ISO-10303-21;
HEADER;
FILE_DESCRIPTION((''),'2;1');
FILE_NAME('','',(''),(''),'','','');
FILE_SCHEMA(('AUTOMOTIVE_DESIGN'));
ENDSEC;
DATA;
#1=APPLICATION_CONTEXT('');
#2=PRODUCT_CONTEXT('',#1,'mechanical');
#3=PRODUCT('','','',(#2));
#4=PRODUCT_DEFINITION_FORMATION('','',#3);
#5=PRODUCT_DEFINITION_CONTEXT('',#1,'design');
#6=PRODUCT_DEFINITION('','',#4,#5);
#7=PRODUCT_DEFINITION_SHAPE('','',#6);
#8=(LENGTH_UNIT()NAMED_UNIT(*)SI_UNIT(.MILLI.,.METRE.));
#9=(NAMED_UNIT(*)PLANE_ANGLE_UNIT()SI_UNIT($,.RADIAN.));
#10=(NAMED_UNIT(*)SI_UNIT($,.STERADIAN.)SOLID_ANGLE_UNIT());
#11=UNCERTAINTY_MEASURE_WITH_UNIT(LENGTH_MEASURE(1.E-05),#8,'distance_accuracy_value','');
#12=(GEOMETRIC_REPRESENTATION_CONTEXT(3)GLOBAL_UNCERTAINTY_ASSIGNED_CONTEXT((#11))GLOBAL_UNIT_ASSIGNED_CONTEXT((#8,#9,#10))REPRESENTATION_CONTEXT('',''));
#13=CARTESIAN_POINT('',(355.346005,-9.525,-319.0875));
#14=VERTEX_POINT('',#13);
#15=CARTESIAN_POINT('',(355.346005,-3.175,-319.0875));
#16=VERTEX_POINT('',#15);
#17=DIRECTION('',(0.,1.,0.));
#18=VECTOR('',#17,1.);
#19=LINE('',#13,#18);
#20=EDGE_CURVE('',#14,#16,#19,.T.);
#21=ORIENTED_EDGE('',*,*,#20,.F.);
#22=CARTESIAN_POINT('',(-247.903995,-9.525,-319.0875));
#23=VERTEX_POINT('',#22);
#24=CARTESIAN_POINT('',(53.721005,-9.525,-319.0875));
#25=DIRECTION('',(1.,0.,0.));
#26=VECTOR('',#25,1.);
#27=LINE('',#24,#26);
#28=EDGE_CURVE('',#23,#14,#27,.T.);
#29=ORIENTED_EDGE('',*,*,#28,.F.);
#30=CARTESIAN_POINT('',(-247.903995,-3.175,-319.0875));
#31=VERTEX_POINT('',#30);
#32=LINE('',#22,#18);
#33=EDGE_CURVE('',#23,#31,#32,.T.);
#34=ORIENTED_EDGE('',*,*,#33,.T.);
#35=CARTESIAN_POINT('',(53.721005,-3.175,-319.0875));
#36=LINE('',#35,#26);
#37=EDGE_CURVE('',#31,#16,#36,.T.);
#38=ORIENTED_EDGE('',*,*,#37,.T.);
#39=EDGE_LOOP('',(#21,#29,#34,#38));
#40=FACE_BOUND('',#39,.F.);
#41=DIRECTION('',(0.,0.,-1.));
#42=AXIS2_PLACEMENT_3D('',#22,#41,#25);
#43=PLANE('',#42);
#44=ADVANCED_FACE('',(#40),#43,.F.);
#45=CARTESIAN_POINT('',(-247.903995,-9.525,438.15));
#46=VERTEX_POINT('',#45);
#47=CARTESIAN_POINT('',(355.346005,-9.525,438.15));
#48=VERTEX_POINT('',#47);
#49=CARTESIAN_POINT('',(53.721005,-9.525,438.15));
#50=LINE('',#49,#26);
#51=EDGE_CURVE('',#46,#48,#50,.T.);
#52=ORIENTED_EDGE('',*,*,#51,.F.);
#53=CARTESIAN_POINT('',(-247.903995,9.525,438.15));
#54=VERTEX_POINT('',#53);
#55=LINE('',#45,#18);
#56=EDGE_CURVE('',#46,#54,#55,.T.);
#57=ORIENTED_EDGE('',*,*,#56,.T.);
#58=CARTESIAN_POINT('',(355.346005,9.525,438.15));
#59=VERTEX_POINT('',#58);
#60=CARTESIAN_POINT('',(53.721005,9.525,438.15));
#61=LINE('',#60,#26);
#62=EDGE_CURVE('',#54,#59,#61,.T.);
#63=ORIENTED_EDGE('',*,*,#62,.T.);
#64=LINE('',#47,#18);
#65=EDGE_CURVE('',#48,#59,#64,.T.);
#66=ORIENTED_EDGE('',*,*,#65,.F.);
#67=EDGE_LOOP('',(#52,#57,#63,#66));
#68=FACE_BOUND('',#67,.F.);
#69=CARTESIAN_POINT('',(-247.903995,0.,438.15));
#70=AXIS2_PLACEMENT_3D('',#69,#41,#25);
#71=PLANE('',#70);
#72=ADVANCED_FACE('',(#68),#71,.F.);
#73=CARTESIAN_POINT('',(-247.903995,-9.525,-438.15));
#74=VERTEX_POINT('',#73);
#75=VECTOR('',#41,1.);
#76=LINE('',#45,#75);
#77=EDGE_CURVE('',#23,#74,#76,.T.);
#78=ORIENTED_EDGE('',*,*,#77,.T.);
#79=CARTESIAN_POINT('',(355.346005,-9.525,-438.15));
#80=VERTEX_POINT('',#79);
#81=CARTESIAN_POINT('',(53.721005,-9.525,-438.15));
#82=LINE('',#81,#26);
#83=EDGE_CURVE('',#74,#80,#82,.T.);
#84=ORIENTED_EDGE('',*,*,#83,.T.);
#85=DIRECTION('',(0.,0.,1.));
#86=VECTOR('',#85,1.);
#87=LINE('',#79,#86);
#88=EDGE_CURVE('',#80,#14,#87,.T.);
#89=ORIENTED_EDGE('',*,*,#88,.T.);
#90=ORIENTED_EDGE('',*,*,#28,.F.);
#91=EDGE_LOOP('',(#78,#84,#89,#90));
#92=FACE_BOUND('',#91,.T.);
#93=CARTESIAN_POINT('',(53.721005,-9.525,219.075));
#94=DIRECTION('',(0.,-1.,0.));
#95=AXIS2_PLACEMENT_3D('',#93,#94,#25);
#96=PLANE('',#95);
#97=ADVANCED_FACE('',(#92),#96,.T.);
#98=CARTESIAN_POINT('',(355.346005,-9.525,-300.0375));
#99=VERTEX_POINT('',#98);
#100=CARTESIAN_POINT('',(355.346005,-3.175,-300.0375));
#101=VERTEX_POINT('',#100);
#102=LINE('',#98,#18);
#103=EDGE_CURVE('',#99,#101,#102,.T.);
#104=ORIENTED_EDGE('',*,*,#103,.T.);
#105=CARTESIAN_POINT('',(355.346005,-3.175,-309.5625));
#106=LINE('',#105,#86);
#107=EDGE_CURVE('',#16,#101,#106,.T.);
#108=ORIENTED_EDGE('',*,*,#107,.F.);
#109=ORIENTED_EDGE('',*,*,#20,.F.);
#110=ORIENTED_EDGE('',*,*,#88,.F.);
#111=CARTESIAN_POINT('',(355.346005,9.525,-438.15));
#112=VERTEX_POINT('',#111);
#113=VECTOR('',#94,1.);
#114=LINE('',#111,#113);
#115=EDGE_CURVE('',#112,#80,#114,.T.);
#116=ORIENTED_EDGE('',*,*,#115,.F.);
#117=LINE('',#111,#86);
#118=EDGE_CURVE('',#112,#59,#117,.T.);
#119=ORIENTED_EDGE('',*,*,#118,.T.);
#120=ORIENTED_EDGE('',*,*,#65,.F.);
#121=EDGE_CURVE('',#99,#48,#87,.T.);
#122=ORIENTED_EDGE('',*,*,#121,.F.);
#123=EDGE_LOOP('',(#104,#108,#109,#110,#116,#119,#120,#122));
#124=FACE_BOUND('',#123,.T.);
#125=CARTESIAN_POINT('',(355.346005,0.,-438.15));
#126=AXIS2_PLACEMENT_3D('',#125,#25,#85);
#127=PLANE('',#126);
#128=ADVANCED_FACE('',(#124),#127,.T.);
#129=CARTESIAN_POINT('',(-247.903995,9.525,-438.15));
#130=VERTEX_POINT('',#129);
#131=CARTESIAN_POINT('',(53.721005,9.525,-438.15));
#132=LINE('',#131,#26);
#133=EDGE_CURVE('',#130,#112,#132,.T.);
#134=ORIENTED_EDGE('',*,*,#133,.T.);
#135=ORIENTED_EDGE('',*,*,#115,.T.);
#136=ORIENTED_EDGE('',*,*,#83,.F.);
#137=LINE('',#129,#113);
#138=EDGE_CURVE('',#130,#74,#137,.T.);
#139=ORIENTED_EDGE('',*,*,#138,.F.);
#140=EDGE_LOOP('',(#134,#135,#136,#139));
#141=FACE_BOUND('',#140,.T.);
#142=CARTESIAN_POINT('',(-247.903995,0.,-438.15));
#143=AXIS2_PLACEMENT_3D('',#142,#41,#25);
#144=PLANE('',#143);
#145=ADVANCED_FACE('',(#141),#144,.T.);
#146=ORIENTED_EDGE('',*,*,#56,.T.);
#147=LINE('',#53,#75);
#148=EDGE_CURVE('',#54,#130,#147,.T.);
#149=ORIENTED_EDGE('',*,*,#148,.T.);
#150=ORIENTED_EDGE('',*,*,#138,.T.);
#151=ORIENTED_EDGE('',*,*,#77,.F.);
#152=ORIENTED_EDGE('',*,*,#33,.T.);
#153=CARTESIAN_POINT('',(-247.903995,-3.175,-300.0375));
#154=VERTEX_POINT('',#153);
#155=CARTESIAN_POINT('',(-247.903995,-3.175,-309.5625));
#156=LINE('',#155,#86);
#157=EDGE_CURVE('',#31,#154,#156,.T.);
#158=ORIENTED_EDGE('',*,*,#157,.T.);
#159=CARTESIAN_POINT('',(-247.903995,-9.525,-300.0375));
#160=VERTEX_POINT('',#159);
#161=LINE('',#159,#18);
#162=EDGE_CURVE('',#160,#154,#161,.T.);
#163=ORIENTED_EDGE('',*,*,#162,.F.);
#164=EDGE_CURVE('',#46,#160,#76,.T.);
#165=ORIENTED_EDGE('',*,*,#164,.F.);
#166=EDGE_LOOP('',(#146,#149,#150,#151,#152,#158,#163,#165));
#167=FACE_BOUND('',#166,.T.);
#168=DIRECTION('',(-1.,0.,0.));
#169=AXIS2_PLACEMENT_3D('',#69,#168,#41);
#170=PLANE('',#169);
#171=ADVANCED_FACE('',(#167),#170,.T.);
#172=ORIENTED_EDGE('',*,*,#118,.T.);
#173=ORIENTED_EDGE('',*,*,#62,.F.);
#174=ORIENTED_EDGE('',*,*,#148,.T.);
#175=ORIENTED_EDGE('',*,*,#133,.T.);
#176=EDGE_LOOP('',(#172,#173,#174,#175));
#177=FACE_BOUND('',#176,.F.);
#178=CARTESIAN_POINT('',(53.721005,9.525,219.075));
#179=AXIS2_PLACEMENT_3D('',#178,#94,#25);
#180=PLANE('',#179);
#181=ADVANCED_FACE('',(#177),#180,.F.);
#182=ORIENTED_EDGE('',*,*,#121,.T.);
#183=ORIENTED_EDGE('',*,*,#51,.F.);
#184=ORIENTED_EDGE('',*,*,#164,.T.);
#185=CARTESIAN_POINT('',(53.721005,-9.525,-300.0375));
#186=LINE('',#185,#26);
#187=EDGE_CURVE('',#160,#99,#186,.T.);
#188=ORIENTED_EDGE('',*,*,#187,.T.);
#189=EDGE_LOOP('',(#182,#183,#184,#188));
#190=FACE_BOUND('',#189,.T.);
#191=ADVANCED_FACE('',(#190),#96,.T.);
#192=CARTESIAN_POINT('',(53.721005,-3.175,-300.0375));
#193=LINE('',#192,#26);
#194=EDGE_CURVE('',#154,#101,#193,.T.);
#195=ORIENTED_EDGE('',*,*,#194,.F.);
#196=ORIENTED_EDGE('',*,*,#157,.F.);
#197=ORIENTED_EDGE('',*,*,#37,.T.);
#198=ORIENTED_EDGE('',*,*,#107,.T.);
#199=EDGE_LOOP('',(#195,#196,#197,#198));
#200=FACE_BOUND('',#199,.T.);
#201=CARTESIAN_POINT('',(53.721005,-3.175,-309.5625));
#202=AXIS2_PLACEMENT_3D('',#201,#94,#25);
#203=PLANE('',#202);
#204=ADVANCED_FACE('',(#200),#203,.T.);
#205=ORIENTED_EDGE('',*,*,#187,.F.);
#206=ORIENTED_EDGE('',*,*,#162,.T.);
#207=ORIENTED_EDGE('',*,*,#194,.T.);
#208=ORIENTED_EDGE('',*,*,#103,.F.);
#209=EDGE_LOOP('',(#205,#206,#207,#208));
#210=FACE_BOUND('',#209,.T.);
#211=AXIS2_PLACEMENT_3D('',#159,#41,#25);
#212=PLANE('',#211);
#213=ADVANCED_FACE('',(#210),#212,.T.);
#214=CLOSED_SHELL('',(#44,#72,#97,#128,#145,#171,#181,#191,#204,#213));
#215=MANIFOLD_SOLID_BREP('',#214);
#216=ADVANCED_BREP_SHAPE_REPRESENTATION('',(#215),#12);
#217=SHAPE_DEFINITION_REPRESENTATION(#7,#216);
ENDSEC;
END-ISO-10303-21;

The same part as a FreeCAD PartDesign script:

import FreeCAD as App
import Part
import Sketcher
Q = App.Units.Quantity


def add_polygon(sketch, points):
    """Adds a closed chain of lines whose ends are joined by coincident constraints."""
    first, n = sketch.GeometryCount, len(points)
    for a, b in zip(points, points[1:] + points[:1]):
        sketch.addGeometry(Part.LineSegment(App.Vector(*a, 0), App.Vector(*b, 0)), False)
    for i in range(n):
        sketch.addConstraint(Sketcher.Constraint("Coincident", first + i, 2, first + (i + 1) % n, 1))

doc = App.newDocument("Part")
params = doc.addObject("Spreadsheet::Sheet", "Params")
for row, (alias, value) in enumerate([
    ("sketch1_height", "34.5 in"),
    ("sketch1_width", "23.75 in"),
    ("pad1_length", "0.75 in"),
    ("sketch2_width", "23.75 in"),
    ("sketch2_height", "0.75 in"),
    ("pocket1_length", "0.25 in"),
], start=1):
    params.set(f"A{row}", alias)
    params.set(f"B{row}", "=" + value)
    params.setAlias(f"B{row}", alias)

body = doc.addObject("PartDesign::Body", "Body")

sketch1 = body.newObject("Sketcher::SketchObject", "Sketch")
sketch1.AttachmentSupport = (doc.getObject("XZ_Plane"), [""])
sketch1.MapMode = "FlatFace"
add_polygon(sketch1, [(-248, 438), (-248, -438), (355, -438), (355, 438)])
sketch1.addConstraint(Sketcher.Constraint("Vertical", 0))
sketch1.addConstraint(Sketcher.Constraint("Horizontal", 1))
sketch1.addConstraint(Sketcher.Constraint("Vertical", 2))
sketch1.addConstraint(Sketcher.Constraint("Horizontal", 3))
sketch1.addConstraint(Sketcher.Constraint("DistanceY", 0, 2, 0, 1, Q("34.5 in")))
sketch1.addConstraint(Sketcher.Constraint("DistanceX", 1, 1, 1, 2, Q("23.75 in")))
sketch1.addConstraint(Sketcher.Constraint("DistanceX", 0, 2, -1, 1, Q("9.7599998 in")))
sketch1.addConstraint(Sketcher.Constraint("DistanceY", 0, 2, -1, 1, Q("17.25 in")))
sketch1.setExpression("Constraints[8]", "Params.sketch1_height")
sketch1.setExpression("Constraints[9]", "Params.sketch1_width")
pad1 = body.newObject("PartDesign::Pad", "Pad")
pad1.Profile = sketch1
pad1.setExpression("Length", "Params.pad1_length")
pad1.Midplane = True

sketch2 = body.newObject("Sketcher::SketchObject", "Sketch001")
sketch2.AttachmentSupport = (doc.getObject("XZ_Plane"), [""])
sketch2.MapMode = "FlatFace"
sketch2.AttachmentOffset = App.Placement(App.Vector(0, 0, 0.375 * 25.4), App.Rotation())
add_polygon(sketch2, [(-248, -300), (-248, -319), (355, -319), (355, -300)])
sketch2.addConstraint(Sketcher.Constraint("Vertical", 0))
sketch2.addConstraint(Sketcher.Constraint("Horizontal", 1))
sketch2.addConstraint(Sketcher.Constraint("Vertical", 2))
sketch2.addConstraint(Sketcher.Constraint("Horizontal", 3))
sketch2.addConstraint(Sketcher.Constraint("DistanceX", 1, 1, 1, 2, Q("23.75 in")))
sketch2.addConstraint(Sketcher.Constraint("DistanceY", 0, 2, 0, 1, Q("0.75 in")))
sketch2.addConstraint(Sketcher.Constraint("DistanceX", 0, 2, -1, 1, Q("9.7599998 in")))
sketch2.addConstraint(Sketcher.Constraint("DistanceY", 0, 2, -1, 1, Q("12.5625 in")))
sketch2.setExpression("Constraints[8]", "Params.sketch2_width")
sketch2.setExpression("Constraints[9]", "Params.sketch2_height")
pocket1 = body.newObject("PartDesign::Pocket", "Pocket")
pocket1.Profile = sketch2
pocket1.setExpression("Length", "Params.pocket1_length")

doc.recompute()
